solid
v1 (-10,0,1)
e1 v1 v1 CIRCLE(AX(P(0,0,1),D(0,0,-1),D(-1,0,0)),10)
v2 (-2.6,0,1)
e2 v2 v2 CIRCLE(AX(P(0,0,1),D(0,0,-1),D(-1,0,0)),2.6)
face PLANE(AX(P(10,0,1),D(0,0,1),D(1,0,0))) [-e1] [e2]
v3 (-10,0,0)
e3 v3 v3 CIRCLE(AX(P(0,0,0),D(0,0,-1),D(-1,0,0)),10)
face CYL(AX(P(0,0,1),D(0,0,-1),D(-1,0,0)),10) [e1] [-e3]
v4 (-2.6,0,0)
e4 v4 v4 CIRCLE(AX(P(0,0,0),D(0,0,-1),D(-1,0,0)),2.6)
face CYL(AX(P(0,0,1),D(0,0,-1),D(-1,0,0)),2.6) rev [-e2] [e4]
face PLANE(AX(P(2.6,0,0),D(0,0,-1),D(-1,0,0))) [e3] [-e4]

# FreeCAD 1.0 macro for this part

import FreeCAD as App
import Part
import Sketcher
from FreeCAD import Vector
Q = App.Units.Quantity


def add_polygon(sketch, points):
    """Adds a closed chain of lines whose ends are joined by coincident constraints."""
    first, n = sketch.GeometryCount, len(points)
    for a, b in zip(points, points[1:] + points[:1]):
        sketch.addGeometry(Part.LineSegment(App.Vector(*a, 0), App.Vector(*b, 0)), False)
    for i in range(n):
        sketch.addConstraint(Sketcher.Constraint("Coincident", first + i, 2, first + (i + 1) % n, 1))

doc = App.newDocument("Part")
body = doc.addObject("PartDesign::Body", "Body")

# Sketch on XZ plane
sketch1 = body.newObject("Sketcher::SketchObject", "Sketch")
sketch1.AttachmentSupport = (doc.getObject("XZ_Plane"), [""])
sketch1.MapMode = "FlatFace"
add_polygon(sketch1, [(2.6, 1), (2.6, 0), (10, 0), (10, 1)])  # lines 0-3
sketch1.addConstraint(Sketcher.Constraint("Vertical", 0))
sketch1.addConstraint(Sketcher.Constraint("Horizontal", 1))
sketch1.addConstraint(Sketcher.Constraint("Vertical", 2))
sketch1.addConstraint(Sketcher.Constraint("Horizontal", 3))
sketch1.addConstraint(Sketcher.Constraint("PointOnObject", 0, 2, -1))
sketch1.addConstraint(Sketcher.Constraint("DistanceY", 0, 2, 0, 1, Q("1 mm")))
sketch1.addConstraint(Sketcher.Constraint("DistanceX", 1, 1, 1, 2, Q("7.4 mm")))
sketch1.addConstraint(Sketcher.Constraint("DistanceX", -1, 1, 1, 2, Q("10 mm")))
revolution = body.newObject("PartDesign::Revolution", "Revolution")
revolution.Profile = sketch1
revolution.ReferenceAxis = (sketch1, ["V_Axis"])
revolution.Angle = 360

doc.recompute()
